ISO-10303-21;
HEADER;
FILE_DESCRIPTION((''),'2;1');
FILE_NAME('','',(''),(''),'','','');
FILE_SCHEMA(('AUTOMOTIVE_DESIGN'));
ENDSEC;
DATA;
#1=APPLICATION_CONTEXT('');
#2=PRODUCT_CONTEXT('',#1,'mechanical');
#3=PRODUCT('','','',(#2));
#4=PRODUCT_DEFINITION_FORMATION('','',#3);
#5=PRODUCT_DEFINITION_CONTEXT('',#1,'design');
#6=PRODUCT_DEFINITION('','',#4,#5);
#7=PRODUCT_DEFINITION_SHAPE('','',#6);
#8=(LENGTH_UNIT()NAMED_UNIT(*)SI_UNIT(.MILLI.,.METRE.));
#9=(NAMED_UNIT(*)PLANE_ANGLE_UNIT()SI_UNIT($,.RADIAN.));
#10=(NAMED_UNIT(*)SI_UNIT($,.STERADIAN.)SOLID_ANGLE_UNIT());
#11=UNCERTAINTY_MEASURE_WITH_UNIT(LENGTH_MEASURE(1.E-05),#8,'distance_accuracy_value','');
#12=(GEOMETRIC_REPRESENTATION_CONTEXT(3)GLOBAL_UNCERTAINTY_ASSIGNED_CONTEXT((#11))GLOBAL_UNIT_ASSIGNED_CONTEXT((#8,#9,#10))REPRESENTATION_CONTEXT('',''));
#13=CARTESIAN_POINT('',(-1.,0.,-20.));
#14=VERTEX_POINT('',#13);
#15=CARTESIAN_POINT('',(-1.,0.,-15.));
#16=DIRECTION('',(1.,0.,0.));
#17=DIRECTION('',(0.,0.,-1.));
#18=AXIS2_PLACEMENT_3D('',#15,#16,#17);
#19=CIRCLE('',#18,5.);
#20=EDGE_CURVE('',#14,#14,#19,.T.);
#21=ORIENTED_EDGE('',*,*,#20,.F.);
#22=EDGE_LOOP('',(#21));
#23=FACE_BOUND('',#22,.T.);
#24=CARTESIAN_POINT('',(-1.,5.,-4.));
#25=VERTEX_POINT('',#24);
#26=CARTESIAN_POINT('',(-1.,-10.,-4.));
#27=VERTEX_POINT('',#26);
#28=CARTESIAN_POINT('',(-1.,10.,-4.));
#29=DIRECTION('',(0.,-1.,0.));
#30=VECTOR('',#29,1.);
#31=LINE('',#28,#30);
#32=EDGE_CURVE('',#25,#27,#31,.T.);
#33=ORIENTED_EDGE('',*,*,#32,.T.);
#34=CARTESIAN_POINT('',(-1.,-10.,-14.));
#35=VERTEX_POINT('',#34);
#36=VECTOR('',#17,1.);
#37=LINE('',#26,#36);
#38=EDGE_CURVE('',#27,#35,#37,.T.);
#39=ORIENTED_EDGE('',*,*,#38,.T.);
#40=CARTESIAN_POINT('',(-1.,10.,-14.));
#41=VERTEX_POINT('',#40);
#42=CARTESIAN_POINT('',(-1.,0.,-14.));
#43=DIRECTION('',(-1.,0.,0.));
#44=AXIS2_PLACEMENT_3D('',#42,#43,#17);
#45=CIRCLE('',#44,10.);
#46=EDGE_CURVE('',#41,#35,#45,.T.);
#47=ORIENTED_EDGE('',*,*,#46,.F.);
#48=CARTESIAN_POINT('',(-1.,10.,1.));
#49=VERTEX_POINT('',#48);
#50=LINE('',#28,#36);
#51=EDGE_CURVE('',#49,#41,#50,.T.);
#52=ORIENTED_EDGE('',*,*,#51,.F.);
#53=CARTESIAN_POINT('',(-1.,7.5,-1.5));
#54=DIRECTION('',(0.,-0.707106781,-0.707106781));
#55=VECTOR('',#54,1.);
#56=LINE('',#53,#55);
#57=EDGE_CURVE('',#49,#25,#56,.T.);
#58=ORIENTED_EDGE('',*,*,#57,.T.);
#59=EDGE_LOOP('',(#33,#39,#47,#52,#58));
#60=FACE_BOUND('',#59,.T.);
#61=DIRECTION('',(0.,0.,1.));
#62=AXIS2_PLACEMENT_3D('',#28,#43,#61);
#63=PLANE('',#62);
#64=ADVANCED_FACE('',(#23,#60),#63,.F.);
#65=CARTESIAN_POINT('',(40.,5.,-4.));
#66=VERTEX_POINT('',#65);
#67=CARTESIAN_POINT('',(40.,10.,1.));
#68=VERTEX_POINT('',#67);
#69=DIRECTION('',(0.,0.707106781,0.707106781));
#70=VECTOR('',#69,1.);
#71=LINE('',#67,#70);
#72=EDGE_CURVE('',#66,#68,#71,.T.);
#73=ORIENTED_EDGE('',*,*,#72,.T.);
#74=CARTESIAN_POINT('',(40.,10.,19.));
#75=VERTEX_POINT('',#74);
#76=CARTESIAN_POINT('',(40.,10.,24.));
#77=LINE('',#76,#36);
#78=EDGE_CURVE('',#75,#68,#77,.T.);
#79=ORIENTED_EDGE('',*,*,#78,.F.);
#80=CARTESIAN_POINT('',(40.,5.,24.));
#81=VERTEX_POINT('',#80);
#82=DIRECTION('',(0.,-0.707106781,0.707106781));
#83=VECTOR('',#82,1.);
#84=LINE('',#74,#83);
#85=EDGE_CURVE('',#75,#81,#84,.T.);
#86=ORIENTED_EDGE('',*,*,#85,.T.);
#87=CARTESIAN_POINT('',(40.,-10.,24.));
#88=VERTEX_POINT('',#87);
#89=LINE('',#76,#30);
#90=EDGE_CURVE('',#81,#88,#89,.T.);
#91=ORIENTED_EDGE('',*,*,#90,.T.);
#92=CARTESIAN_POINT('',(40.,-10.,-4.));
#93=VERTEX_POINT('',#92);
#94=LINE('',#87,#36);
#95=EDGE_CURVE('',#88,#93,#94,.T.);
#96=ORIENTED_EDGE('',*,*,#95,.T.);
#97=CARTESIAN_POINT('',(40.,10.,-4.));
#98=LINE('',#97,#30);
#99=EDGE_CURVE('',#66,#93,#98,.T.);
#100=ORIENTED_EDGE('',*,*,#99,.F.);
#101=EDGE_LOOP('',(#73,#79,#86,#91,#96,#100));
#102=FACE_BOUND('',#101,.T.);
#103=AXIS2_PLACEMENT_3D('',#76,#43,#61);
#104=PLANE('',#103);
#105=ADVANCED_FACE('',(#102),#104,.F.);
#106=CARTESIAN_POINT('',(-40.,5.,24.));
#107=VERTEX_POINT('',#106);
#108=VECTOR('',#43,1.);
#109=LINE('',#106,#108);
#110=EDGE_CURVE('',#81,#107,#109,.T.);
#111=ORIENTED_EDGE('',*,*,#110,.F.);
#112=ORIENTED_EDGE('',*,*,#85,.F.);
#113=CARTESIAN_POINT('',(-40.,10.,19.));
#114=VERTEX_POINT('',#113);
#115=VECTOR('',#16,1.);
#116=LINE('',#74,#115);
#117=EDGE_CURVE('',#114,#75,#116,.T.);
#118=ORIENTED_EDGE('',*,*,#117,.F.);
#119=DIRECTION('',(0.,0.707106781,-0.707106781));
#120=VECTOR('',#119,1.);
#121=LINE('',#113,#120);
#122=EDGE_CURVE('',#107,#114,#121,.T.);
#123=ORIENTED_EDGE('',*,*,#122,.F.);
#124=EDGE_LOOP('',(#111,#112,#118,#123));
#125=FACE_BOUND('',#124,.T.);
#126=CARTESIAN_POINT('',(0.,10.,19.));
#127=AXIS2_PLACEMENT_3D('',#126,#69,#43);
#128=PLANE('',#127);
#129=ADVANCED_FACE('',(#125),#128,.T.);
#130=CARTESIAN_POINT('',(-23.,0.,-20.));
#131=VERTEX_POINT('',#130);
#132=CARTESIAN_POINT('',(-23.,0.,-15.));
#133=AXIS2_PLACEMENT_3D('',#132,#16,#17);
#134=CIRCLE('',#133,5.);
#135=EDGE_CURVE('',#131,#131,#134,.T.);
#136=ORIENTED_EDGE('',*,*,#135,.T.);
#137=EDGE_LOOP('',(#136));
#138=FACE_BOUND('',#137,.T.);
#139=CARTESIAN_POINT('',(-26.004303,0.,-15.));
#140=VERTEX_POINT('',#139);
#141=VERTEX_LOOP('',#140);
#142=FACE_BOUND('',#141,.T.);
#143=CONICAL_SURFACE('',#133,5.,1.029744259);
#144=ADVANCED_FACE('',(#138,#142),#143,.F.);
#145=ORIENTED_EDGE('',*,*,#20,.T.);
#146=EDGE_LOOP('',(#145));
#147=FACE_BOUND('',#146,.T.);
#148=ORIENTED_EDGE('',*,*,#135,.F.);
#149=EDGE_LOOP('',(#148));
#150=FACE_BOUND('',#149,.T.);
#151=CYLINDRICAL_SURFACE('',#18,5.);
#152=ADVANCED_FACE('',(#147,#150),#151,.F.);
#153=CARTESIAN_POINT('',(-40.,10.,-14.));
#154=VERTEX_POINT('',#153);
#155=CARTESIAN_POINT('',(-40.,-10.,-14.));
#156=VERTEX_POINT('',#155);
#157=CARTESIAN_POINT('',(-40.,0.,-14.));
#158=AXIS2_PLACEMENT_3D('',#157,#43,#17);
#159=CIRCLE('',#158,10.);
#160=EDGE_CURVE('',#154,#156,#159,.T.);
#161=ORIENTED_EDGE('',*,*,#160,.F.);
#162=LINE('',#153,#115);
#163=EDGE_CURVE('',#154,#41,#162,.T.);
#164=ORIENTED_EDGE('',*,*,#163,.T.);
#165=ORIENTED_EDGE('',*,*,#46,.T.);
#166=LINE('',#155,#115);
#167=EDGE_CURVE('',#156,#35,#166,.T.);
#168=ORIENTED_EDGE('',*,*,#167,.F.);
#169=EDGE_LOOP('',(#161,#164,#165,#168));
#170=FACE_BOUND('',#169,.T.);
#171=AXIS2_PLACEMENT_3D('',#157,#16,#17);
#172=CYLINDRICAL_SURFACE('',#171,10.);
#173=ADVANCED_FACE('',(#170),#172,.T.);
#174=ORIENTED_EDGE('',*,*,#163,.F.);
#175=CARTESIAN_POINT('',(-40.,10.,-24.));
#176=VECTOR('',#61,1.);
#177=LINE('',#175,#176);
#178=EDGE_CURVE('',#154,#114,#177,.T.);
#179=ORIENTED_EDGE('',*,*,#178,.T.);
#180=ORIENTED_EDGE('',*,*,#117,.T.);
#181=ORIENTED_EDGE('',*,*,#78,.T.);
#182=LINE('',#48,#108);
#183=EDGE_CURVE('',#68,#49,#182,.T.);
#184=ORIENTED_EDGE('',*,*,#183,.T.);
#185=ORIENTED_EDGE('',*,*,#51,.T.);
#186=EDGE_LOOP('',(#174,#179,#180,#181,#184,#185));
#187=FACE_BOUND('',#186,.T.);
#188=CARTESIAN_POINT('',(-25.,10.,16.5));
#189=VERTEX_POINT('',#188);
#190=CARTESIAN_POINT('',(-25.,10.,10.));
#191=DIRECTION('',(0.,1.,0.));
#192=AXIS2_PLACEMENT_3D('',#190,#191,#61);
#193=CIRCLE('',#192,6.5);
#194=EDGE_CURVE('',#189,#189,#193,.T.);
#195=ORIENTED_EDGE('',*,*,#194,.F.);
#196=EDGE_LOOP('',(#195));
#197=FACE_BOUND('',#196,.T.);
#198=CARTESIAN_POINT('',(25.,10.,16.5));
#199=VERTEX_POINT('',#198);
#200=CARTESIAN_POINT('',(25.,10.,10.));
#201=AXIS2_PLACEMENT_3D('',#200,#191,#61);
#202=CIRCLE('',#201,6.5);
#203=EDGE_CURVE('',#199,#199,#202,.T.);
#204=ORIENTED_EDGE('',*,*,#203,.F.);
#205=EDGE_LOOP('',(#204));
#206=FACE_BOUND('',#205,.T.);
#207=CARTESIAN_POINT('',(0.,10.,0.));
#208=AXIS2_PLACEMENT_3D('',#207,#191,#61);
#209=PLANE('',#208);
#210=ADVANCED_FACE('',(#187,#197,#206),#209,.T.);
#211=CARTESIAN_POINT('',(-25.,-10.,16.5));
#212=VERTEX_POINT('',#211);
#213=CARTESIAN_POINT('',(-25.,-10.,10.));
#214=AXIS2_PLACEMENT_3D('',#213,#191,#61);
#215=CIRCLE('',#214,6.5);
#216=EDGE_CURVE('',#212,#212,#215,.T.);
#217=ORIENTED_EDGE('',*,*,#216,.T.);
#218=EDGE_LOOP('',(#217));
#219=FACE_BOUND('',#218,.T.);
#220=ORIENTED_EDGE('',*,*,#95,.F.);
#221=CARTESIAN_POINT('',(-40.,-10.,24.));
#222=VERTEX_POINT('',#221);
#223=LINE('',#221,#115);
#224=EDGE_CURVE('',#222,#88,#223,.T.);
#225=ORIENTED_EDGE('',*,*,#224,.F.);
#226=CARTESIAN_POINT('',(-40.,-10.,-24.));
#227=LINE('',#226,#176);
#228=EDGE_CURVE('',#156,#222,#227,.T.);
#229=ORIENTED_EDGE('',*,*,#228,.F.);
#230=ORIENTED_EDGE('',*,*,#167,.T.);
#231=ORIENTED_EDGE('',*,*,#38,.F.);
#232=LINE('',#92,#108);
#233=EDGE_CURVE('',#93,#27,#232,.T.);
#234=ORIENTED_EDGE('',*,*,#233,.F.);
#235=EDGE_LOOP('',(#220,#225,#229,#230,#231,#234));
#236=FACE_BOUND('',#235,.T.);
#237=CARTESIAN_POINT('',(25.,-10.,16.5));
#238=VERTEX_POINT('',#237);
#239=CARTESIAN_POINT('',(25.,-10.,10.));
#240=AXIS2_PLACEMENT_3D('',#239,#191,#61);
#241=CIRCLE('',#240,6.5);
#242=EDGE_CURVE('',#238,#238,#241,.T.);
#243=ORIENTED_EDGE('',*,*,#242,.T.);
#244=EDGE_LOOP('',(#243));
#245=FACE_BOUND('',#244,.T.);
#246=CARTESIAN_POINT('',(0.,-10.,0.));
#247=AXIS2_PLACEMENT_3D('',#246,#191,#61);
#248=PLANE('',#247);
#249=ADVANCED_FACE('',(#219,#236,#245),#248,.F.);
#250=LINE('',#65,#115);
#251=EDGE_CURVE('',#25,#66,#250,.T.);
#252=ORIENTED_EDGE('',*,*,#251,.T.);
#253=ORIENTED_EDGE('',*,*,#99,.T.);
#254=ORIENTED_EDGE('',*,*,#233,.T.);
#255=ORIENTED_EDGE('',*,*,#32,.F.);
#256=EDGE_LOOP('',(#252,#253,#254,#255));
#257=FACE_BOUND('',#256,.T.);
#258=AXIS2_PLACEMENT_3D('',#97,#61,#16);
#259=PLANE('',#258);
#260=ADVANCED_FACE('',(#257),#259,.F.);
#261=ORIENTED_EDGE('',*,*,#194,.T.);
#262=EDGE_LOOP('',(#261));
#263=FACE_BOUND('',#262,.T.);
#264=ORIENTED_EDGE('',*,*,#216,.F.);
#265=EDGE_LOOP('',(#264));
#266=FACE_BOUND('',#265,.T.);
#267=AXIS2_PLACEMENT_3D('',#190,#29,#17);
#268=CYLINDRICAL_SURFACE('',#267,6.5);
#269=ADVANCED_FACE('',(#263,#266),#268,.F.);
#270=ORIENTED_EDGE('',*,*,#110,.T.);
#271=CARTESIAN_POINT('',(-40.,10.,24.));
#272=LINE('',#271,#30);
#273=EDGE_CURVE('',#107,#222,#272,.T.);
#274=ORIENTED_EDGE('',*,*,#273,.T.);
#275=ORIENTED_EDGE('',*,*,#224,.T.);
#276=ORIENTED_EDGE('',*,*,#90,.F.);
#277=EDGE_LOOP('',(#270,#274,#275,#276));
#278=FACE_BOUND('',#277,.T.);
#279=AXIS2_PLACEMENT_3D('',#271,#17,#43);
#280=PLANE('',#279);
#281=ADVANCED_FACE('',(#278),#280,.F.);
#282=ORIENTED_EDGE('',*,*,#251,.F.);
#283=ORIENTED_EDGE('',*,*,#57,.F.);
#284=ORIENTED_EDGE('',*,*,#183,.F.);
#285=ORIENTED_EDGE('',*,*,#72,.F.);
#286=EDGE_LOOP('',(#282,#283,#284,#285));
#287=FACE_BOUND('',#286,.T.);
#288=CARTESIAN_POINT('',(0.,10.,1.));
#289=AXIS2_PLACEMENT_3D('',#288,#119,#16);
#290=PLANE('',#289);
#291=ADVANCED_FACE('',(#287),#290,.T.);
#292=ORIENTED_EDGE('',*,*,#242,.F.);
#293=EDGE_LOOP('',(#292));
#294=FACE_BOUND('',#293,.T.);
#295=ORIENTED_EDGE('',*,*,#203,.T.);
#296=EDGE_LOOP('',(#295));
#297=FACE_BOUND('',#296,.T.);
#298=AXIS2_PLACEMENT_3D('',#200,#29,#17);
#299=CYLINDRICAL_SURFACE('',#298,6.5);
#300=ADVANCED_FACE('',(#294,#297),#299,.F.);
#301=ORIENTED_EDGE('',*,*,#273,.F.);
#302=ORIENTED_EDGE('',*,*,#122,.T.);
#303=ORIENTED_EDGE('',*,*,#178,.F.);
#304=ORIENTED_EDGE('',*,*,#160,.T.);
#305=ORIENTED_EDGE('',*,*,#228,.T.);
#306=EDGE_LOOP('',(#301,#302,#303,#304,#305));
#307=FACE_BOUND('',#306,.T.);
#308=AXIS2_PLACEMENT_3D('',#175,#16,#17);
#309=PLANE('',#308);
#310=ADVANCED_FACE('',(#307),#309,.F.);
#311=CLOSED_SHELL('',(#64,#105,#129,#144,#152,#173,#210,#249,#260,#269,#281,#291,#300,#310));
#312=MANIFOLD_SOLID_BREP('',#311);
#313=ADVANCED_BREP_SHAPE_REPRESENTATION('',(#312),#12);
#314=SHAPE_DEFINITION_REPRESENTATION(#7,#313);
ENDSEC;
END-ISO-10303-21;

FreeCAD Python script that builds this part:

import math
import FreeCAD as App
import Part
import Sketcher


def edges_at(feature, points):
    """Names of the edges that pass closest to the given points."""
    edges = feature.Shape.Edges
    near = lambda p: min(range(len(edges)), key=lambda i: edges[i].distToShape(Part.Vertex(*p))[0])
    return sorted({f"Edge{near(p) + 1}" for p in points})


def add_polygon(sketch, points):
    """Adds a closed chain of lines whose ends are joined by coincident constraints."""
    first, n = sketch.GeometryCount, len(points)
    for a, b in zip(points, points[1:] + points[:1]):
        sketch.addGeometry(Part.LineSegment(App.Vector(*a, 0), App.Vector(*b, 0)), False)
    for i in range(n):
        sketch.addConstraint(Sketcher.Constraint("Coincident", first + i, 2, first + (i + 1) % n, 1))

doc = App.newDocument("Part")
body = doc.addObject("PartDesign::Body", "Body")

# Sketch on XZ plane
sketch1 = body.newObject("Sketcher::SketchObject", "Sketch")
sketch1.AttachmentSupport = (doc.getObject("XZ_Plane"), [""])
sketch1.MapMode = "FlatFace"
add_polygon(sketch1, [(-40, 24), (40, 24), (40, -4), (-1, -4), (-1, -24), (-40, -24)])  # lines 0-5
sketch1.addGeometry(Part.Circle(App.Vector(-25, 10, 0), App.Vector(0, 0, 1), 6), False)  # 6
sketch1.addGeometry(Part.Circle(App.Vector(25, 10, 0), App.Vector(0, 0, 1), 6), False)  # 7
sketch1.addConstraint([
    Sketcher.Constraint("Horizontal", 0),
    Sketcher.Constraint("Vertical", 1),
    Sketcher.Constraint("Horizontal", 2),
    Sketcher.Constraint("Vertical", 3),
    Sketcher.Constraint("Horizontal", 4),
    Sketcher.Constraint("Vertical", 5),
    Sketcher.Constraint("Equal", 6, 7),
    Sketcher.Constraint("Symmetric", 0, 2, 4, 2, -1, 1),
    Sketcher.Constraint("Symmetric", 6, 3, 7, 3, -2),
    Sketcher.Constraint("Diameter", 6, 13.0),
    Sketcher.Constraint("DistanceX", 0, 1, 0, 2, 80.0),
    Sketcher.Constraint("DistanceX", 2, 2, 2, 1, 41.0),
    Sketcher.Constraint("DistanceY", 1, 2, 1, 1, 28.0),
    Sketcher.Constraint("DistanceY", 3, 2, 3, 1, 20.0),
    Sketcher.Constraint("DistanceX", 6, 3, -1, 1, 25.0),
    Sketcher.Constraint("DistanceY", -1, 1, 6, 3, 10.0),
])
pad1 = body.newObject("PartDesign::Pad", "Pad")
pad1.Profile = sketch1
pad1.Length = 20
pad1.Midplane = True

# Sketch on YZ plane
sketch2 = body.newObject("Sketcher::SketchObject", "Sketch001")
sketch2.AttachmentSupport = (doc.getObject("YZ_Plane"), [""])
sketch2.MapMode = "FlatFace"
sketch2.AttachmentOffset = App.Placement(App.Vector(0, 0, -1), App.Rotation())
sketch2.addGeometry(Part.Circle(App.Vector(0, -15, 0), App.Vector(0, 0, 1), 5), False)
sketch2.addConstraint([
    Sketcher.Constraint("PointOnObject", 0, 3, -2),
    Sketcher.Constraint("Diameter", 0, 10.0),
    Sketcher.Constraint("DistanceY", 0, 3, -1, 1, 15.0),
])
doc.recompute()
hole = body.newObject("PartDesign::Hole", "Hole")
hole.Profile = sketch2
hole.ThreadType = "None"
hole.Diameter = 10
hole.DepthType = "Dimension"
hole.Depth = 22
hole.DrillPoint = "Angled"
hole.DrillPointAngle = 118

# Sketch on YZ plane
sketch3 = body.newObject("Sketcher::SketchObject", "Sketch002")
sketch3.AttachmentSupport = (doc.getObject("YZ_Plane"), [""])
sketch3.MapMode = "FlatFace"
sketch3.AttachmentOffset = App.Placement(App.Vector(0, 0, -1), App.Rotation())
sketch3.addGeometry([
    Part.LineSegment(App.Vector(10, -26, 0), App.Vector(10, -14, 0)),
    Part.ArcOfCircle(Part.Circle(App.Vector(0, -14, 0), App.Vector(0, 0, 1), 10), math.radians(180), math.radians(360)),
    Part.LineSegment(App.Vector(-10, -14, 0), App.Vector(-10, -26, 0)),
    Part.LineSegment(App.Vector(-10, -26, 0), App.Vector(10, -26, 0)),
], False)
sketch3.addConstraint([
    Sketcher.Constraint("Tangent", 0, 2, 1, 2),
    Sketcher.Constraint("Tangent", 1, 1, 2, 1),
    Sketcher.Constraint("Coincident", 2, 2, 3, 1),
    Sketcher.Constraint("Coincident", 3, 2, 0, 1),
    Sketcher.Constraint("Vertical", 0),
    Sketcher.Constraint("Vertical", 2),
    Sketcher.Constraint("Horizontal", 3),
    Sketcher.Constraint("PointOnObject", 1, 3, -2),
    Sketcher.Constraint("Radius", 1, 10.0),
    Sketcher.Constraint("DistanceY", 0, 1, 0, 2, 12.0),
    Sketcher.Constraint("DistanceY", 1, 3, -1, 1, 14.0),
])
pocket1 = body.newObject("PartDesign::Pocket", "Pocket")
pocket1.Profile = sketch3
pocket1.Type = "ThroughAll"
doc.recompute()

chamfer = body.newObject("PartDesign::Chamfer", "Chamfer")
chamfer.Base = (pocket1, edges_at(pocket1, [(19.5, 10, -4), (0, 10, 24)]))
chamfer.Size = 5

doc.recompute()
